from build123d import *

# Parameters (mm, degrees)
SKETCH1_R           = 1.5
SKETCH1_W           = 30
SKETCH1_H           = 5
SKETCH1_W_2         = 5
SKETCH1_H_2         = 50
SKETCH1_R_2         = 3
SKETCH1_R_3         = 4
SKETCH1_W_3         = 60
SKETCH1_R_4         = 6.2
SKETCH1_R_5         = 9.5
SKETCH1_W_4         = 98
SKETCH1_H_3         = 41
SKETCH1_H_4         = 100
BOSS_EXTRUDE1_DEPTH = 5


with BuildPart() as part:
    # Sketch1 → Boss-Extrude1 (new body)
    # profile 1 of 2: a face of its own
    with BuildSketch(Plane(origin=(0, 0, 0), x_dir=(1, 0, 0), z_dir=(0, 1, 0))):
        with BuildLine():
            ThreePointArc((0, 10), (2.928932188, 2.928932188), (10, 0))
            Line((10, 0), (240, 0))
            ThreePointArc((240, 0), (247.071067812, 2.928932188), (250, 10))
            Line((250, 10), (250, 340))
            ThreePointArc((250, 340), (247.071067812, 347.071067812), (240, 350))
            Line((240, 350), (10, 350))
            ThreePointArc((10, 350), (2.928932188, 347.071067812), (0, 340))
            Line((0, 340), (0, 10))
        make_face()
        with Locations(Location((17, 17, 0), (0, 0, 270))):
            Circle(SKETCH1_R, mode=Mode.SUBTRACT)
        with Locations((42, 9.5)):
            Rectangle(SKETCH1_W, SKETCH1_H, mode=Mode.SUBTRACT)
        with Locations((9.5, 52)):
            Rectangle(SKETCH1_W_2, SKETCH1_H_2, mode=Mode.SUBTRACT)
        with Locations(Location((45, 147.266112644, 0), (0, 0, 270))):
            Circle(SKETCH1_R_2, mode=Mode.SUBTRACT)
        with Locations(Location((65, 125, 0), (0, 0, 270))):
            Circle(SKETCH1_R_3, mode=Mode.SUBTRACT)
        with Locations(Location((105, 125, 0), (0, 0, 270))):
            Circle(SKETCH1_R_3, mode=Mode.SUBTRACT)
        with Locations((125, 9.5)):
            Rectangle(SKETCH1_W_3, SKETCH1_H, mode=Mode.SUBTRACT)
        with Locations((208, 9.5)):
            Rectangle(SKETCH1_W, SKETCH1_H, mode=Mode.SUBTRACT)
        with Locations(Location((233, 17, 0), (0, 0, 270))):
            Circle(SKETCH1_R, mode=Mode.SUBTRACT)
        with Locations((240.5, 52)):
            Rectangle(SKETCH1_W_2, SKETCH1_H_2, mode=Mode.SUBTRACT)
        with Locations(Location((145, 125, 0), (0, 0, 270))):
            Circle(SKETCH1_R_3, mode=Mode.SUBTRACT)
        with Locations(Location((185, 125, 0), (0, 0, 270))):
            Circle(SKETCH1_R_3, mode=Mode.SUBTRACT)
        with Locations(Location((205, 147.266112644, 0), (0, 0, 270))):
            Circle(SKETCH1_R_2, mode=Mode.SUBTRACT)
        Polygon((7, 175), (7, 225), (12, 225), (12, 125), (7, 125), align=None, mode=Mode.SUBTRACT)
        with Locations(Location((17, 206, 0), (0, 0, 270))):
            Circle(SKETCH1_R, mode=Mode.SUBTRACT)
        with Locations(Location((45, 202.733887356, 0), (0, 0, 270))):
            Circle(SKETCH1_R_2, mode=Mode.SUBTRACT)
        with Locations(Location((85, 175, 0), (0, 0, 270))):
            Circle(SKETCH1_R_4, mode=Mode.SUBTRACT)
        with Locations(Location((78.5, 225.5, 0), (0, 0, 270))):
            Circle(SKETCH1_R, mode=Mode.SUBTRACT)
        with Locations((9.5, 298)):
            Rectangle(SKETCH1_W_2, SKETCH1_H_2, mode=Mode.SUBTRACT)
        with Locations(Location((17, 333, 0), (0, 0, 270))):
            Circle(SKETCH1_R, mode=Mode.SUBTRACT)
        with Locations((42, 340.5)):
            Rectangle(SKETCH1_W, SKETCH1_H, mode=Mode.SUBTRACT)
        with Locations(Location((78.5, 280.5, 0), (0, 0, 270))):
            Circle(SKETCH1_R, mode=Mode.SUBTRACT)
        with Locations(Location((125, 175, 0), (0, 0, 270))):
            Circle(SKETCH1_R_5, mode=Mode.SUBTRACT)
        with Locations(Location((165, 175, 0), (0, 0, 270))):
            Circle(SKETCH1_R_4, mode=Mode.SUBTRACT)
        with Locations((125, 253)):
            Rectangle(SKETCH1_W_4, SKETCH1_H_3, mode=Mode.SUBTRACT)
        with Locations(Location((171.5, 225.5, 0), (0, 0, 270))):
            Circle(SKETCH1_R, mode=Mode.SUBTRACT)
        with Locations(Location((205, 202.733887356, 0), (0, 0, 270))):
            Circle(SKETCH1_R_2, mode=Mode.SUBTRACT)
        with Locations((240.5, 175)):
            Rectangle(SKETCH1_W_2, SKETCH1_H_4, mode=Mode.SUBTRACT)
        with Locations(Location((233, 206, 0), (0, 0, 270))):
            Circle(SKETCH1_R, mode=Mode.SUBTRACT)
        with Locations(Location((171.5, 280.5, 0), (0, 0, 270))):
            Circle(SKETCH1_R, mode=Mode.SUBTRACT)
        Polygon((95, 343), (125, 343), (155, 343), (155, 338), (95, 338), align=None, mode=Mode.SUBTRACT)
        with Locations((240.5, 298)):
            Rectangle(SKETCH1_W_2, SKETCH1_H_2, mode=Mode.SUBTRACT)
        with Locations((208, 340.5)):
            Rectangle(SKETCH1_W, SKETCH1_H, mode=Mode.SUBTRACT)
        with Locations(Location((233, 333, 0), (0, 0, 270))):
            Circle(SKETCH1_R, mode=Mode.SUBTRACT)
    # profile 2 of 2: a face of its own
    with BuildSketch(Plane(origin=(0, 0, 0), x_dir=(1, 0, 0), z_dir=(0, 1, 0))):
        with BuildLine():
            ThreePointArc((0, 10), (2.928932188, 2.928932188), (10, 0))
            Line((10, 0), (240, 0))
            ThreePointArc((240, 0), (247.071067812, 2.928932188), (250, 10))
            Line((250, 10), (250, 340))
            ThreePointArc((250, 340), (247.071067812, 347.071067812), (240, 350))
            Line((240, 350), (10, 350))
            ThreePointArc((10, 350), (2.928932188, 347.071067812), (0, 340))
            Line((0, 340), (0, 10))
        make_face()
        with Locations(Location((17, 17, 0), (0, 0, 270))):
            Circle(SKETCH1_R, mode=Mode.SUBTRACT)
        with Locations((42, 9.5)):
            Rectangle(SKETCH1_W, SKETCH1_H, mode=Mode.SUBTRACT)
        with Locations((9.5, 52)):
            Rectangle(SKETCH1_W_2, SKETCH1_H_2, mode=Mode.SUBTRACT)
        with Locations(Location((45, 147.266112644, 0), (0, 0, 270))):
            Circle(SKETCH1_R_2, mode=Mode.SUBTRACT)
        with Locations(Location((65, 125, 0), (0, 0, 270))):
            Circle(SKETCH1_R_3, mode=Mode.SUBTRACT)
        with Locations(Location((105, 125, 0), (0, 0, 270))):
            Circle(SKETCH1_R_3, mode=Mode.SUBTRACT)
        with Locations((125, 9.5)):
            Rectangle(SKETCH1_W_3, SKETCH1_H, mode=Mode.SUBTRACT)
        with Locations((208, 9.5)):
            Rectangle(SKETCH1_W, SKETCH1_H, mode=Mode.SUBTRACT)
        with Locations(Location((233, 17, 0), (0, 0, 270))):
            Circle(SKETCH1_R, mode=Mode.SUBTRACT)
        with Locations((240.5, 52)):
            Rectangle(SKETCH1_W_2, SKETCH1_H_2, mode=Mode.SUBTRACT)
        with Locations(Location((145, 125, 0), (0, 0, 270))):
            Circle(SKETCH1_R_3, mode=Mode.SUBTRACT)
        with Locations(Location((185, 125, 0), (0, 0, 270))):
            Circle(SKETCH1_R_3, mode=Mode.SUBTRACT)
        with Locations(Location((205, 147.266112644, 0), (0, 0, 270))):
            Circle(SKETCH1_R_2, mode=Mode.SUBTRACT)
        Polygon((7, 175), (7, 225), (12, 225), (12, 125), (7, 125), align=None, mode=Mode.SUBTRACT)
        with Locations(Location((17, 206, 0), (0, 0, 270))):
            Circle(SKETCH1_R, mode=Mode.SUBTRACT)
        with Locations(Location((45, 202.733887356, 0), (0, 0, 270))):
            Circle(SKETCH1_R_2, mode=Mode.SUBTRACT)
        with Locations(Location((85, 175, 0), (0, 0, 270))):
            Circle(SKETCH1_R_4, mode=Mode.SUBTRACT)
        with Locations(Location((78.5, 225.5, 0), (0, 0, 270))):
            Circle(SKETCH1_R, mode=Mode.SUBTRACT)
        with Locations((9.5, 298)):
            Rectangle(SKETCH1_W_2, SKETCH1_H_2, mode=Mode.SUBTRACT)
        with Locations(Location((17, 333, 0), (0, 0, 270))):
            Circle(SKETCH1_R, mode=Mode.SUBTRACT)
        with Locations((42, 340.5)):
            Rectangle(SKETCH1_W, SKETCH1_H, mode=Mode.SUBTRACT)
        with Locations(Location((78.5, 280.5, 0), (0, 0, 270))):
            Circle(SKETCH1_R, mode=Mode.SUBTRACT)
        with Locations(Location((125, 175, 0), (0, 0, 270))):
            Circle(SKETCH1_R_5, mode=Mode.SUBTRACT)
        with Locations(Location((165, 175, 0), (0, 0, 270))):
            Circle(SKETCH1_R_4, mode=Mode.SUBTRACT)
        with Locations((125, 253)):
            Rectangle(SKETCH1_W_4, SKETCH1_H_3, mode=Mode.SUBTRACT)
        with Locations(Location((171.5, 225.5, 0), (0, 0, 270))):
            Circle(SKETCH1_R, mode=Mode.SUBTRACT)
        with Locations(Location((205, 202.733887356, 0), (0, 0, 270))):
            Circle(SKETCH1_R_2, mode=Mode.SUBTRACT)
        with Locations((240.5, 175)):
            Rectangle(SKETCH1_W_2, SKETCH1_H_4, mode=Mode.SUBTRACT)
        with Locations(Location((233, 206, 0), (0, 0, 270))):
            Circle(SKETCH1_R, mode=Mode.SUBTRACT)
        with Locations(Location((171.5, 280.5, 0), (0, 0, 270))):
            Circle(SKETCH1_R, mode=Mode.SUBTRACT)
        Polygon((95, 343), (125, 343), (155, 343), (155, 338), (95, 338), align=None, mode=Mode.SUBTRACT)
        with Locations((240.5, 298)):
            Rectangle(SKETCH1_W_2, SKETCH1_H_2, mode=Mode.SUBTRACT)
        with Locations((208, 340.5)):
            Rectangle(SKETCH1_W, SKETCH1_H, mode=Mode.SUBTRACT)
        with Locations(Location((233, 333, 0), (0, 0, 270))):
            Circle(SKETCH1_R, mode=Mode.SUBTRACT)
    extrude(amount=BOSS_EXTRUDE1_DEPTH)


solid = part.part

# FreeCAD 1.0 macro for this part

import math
import FreeCAD as App
import Part
import Sketcher

V = App.Vector


def add_polygon(sketch, points):
    """Adds a closed chain of lines whose ends are joined by coincident constraints."""
    first, n = sketch.GeometryCount, len(points)
    for a, b in zip(points, points[1:] + points[:1]):
        sketch.addGeometry(Part.LineSegment(App.Vector(*a, 0), App.Vector(*b, 0)), False)
    for i in range(n):
        sketch.addConstraint(Sketcher.Constraint("Coincident", first + i, 2, first + (i + 1) % n, 1))

doc = App.newDocument("Part")
body = doc.addObject("PartDesign::Body", "Body")

# Sketch on XZ plane
sketch1 = doc.addObject("Sketcher::SketchObject", "Sketch")
body.addObject(sketch1)
sketch1.AttachmentSupport = (doc.XZ_Plane, [""])
sketch1.MapMode = "FlatFace"
sketch1.addGeometry(Part.ArcOfCircle(Part.Circle(V(10, -10, 0), V(0, 0, 1), 10), math.radians(90), math.radians(180)), False)  # 0
sketch1.addGeometry(Part.LineSegment(V(10, 0, 0), V(240, 0, 0)), False)  # 1
sketch1.addGeometry(Part.ArcOfCircle(Part.Circle(V(240, -10, 0), V(0, 0, 1), 10), math.radians(0), math.radians(90)), False)  # 2
sketch1.addGeometry(Part.LineSegment(V(250, -10, 0), V(250, -340, 0)), False)  # 3
sketch1.addGeometry(Part.ArcOfCircle(Part.Circle(V(240, -340, 0), V(0, 0, 1), 10), math.radians(-90), math.radians(0)), False)  # 4
sketch1.addGeometry(Part.LineSegment(V(240, -350, 0), V(10, -350, 0)), False)  # 5
sketch1.addGeometry(Part.ArcOfCircle(Part.Circle(V(10, -340, 0), V(0, 0, 1), 10), math.radians(180), math.radians(270)), False)  # 6
sketch1.addGeometry(Part.LineSegment(V(0, -340, 0), V(0, -10, 0)), False)  # 7
sketch1.addGeometry(Part.Circle(V(17, -17, 0), V(0, 0, 1), 1.5), False)  # 8
add_polygon(sketch1, [(57, -7), (27, -7), (27, -12), (57, -12)])  # lines 9-12
add_polygon(sketch1, [(12, -27), (7, -27), (7, -77), (12, -77)])  # lines 13-16
sketch1.addGeometry(Part.Circle(V(65, -125, 0), V(0, 0, 1), 4), False)  # 17
sketch1.addGeometry(Part.Circle(V(45, -147.266113, 0), V(0, 0, 1), 3), False)  # 18
sketch1.addGeometry(Part.Circle(V(105, -125, 0), V(0, 0, 1), 4), False)  # 19
add_polygon(sketch1, [(155, -7), (95, -7), (95, -12), (155, -12)])  # lines 20-23
add_polygon(sketch1, [(223, -7), (193, -7), (193, -12), (223, -12)])  # lines 24-27
sketch1.addGeometry(Part.Circle(V(233, -17, 0), V(0, 0, 1), 1.5), False)  # 28
add_polygon(sketch1, [(243, -27), (238, -27), (238, -77), (243, -77)])  # lines 29-32
sketch1.addGeometry(Part.Circle(V(145, -125, 0), V(0, 0, 1), 4), False)  # 33
sketch1.addGeometry(Part.Circle(V(185, -125, 0), V(0, 0, 1), 4), False)  # 34
sketch1.addGeometry(Part.Circle(V(205, -147.266113, 0), V(0, 0, 1), 3), False)  # 35
add_polygon(sketch1, [(7, -125), (7, -225), (12, -225), (12, -125)])  # lines 36-39
sketch1.addGeometry(Part.Circle(V(17, -206, 0), V(0, 0, 1), 1.5), False)  # 40
sketch1.addGeometry(Part.Circle(V(45, -202.733887, 0), V(0, 0, 1), 3), False)  # 41
sketch1.addGeometry(Part.Circle(V(85, -175, 0), V(0, 0, 1), 6.2), False)  # 42
sketch1.addGeometry(Part.Circle(V(78.5, -225.5, 0), V(0, 0, 1), 1.5), False)  # 43
add_polygon(sketch1, [(12, -273), (7, -273), (7, -323), (12, -323)])  # lines 44-47
sketch1.addGeometry(Part.Circle(V(17, -333, 0), V(0, 0, 1), 1.5), False)  # 48
add_polygon(sketch1, [(57, -338), (27, -338), (27, -343), (57, -343)])  # lines 49-52
sketch1.addGeometry(Part.Circle(V(78.5, -280.5, 0), V(0, 0, 1), 1.5), False)  # 53
sketch1.addGeometry(Part.Circle(V(125, -175, 0), V(0, 0, 1), 9.5), False)  # 54
sketch1.addGeometry(Part.Circle(V(165, -175, 0), V(0, 0, 1), 6.2), False)  # 55
add_polygon(sketch1, [(174, -232.5), (76, -232.5), (76, -273.5), (174, -273.5)])  # lines 56-59
sketch1.addGeometry(Part.Circle(V(171.5, -225.5, 0), V(0, 0, 1), 1.5), False)  # 60
sketch1.addGeometry(Part.Circle(V(205, -202.733887, 0), V(0, 0, 1), 3), False)  # 61
add_polygon(sketch1, [(243, -125), (238, -125), (238, -225), (243, -225)])  # lines 62-65
sketch1.addGeometry(Part.Circle(V(233, -206, 0), V(0, 0, 1), 1.5), False)  # 66
sketch1.addGeometry(Part.Circle(V(171.5, -280.5, 0), V(0, 0, 1), 1.5), False)  # 67
add_polygon(sketch1, [(95, -338), (95, -343), (155, -343), (155, -338)])  # lines 68-71
add_polygon(sketch1, [(243, -273), (238, -273), (238, -323), (243, -323)])  # lines 72-75
add_polygon(sketch1, [(223, -338), (193, -338), (193, -343), (223, -343)])  # lines 76-79
sketch1.addGeometry(Part.Circle(V(233, -333, 0), V(0, 0, 1), 1.5), False)  # 80
sketch1.addConstraint(Sketcher.Constraint("Tangent", 0, 1, 1, 1))
sketch1.addConstraint(Sketcher.Constraint("Tangent", 1, 2, 2, 2))
sketch1.addConstraint(Sketcher.Constraint("Tangent", 2, 1, 3, 1))
sketch1.addConstraint(Sketcher.Constraint("Tangent", 3, 2, 4, 2))
sketch1.addConstraint(Sketcher.Constraint("Tangent", 4, 1, 5, 1))
sketch1.addConstraint(Sketcher.Constraint("Tangent", 5, 2, 6, 2))
sketch1.addConstraint(Sketcher.Constraint("Tangent", 6, 1, 7, 1))
sketch1.addConstraint(Sketcher.Constraint("Tangent", 7, 2, 0, 2))
sketch1.addConstraint(Sketcher.Constraint("Horizontal", 1))
sketch1.addConstraint(Sketcher.Constraint("Vertical", 3))
sketch1.addConstraint(Sketcher.Constraint("Horizontal", 5))
sketch1.addConstraint(Sketcher.Constraint("Vertical", 7))
sketch1.addConstraint(Sketcher.Constraint("Horizontal", 9))
sketch1.addConstraint(Sketcher.Constraint("Vertical", 10))
sketch1.addConstraint(Sketcher.Constraint("Horizontal", 11))
sketch1.addConstraint(Sketcher.Constraint("Vertical", 12))
sketch1.addConstraint(Sketcher.Constraint("Horizontal", 13))
sketch1.addConstraint(Sketcher.Constraint("Vertical", 14))
sketch1.addConstraint(Sketcher.Constraint("Horizontal", 15))
sketch1.addConstraint(Sketcher.Constraint("Vertical", 16))
sketch1.addConstraint(Sketcher.Constraint("Horizontal", 20))
sketch1.addConstraint(Sketcher.Constraint("Vertical", 21))
sketch1.addConstraint(Sketcher.Constraint("Horizontal", 22))
sketch1.addConstraint(Sketcher.Constraint("Vertical", 23))
sketch1.addConstraint(Sketcher.Constraint("Horizontal", 24))
sketch1.addConstraint(Sketcher.Constraint("Vertical", 25))
sketch1.addConstraint(Sketcher.Constraint("Horizontal", 26))
sketch1.addConstraint(Sketcher.Constraint("Vertical", 27))
sketch1.addConstraint(Sketcher.Constraint("Horizontal", 29))
sketch1.addConstraint(Sketcher.Constraint("Vertical", 30))
sketch1.addConstraint(Sketcher.Constraint("Horizontal", 31))
sketch1.addConstraint(Sketcher.Constraint("Vertical", 32))
sketch1.addConstraint(Sketcher.Constraint("Vertical", 36))
sketch1.addConstraint(Sketcher.Constraint("Horizontal", 37))
sketch1.addConstraint(Sketcher.Constraint("Vertical", 38))
sketch1.addConstraint(Sketcher.Constraint("Horizontal", 39))
sketch1.addConstraint(Sketcher.Constraint("Horizontal", 44))
sketch1.addConstraint(Sketcher.Constraint("Vertical", 45))
sketch1.addConstraint(Sketcher.Constraint("Horizontal", 46))
sketch1.addConstraint(Sketcher.Constraint("Vertical", 47))
sketch1.addConstraint(Sketcher.Constraint("Horizontal", 49))
sketch1.addConstraint(Sketcher.Constraint("Vertical", 50))
sketch1.addConstraint(Sketcher.Constraint("Horizontal", 51))
sketch1.addConstraint(Sketcher.Constraint("Vertical", 52))
sketch1.addConstraint(Sketcher.Constraint("Horizontal", 56))
sketch1.addConstraint(Sketcher.Constraint("Vertical", 57))
sketch1.addConstraint(Sketcher.Constraint("Horizontal", 58))
sketch1.addConstraint(Sketcher.Constraint("Vertical", 59))
sketch1.addConstraint(Sketcher.Constraint("Horizontal", 62))
sketch1.addConstraint(Sketcher.Constraint("Vertical", 63))
sketch1.addConstraint(Sketcher.Constraint("Horizontal", 64))
sketch1.addConstraint(Sketcher.Constraint("Vertical", 65))
sketch1.addConstraint(Sketcher.Constraint("Vertical", 68))
sketch1.addConstraint(Sketcher.Constraint("Horizontal", 69))
sketch1.addConstraint(Sketcher.Constraint("Vertical", 70))
sketch1.addConstraint(Sketcher.Constraint("Horizontal", 71))
sketch1.addConstraint(Sketcher.Constraint("Horizontal", 72))
sketch1.addConstraint(Sketcher.Constraint("Vertical", 73))
sketch1.addConstraint(Sketcher.Constraint("Horizontal", 74))
sketch1.addConstraint(Sketcher.Constraint("Vertical", 75))
sketch1.addConstraint(Sketcher.Constraint("Horizontal", 76))
sketch1.addConstraint(Sketcher.Constraint("Vertical", 77))
sketch1.addConstraint(Sketcher.Constraint("Horizontal", 78))
sketch1.addConstraint(Sketcher.Constraint("Vertical", 79))
sketch1.addConstraint(Sketcher.Constraint("Equal", 0, 2))
sketch1.addConstraint(Sketcher.Constraint("Equal", 2, 4))
sketch1.addConstraint(Sketcher.Constraint("Equal", 4, 6))
sketch1.addConstraint(Sketcher.Constraint("Equal", 17, 19))
sketch1.addConstraint(Sketcher.Constraint("Equal", 8, 28))
sketch1.addConstraint(Sketcher.Constraint("Equal", 19, 33))
sketch1.addConstraint(Sketcher.Constraint("Equal", 33, 34))
sketch1.addConstraint(Sketcher.Constraint("Equal", 18, 35))
sketch1.addConstraint(Sketcher.Constraint("Equal", 28, 40))
sketch1.addConstraint(Sketcher.Constraint("Equal", 35, 41))
sketch1.addConstraint(Sketcher.Constraint("Equal", 40, 43))
sketch1.addConstraint(Sketcher.Constraint("Equal", 43, 48))
sketch1.addConstraint(Sketcher.Constraint("Equal", 48, 53))
sketch1.addConstraint(Sketcher.Constraint("Equal", 42, 55))
sketch1.addConstraint(Sketcher.Constraint("Equal", 53, 60))
sketch1.addConstraint(Sketcher.Constraint("Equal", 41, 61))
sketch1.addConstraint(Sketcher.Constraint("Equal", 60, 66))
sketch1.addConstraint(Sketcher.Constraint("Equal", 66, 67))
sketch1.addConstraint(Sketcher.Constraint("Equal", 67, 80))
sketch1.addConstraint(Sketcher.Constraint("PointOnObject", 0, 1, -1))
sketch1.addConstraint(Sketcher.Constraint("PointOnObject", 6, 1, -2))
sketch1.addConstraint(Sketcher.Constraint("Horizontal", 17, 3, 19, 3))
sketch1.addConstraint(Sketcher.Constraint("Horizontal", 8, 3, 28, 3))
sketch1.addConstraint(Sketcher.Constraint("Horizontal", 19, 3, 33, 3))
sketch1.addConstraint(Sketcher.Constraint("Horizontal", 33, 3, 34, 3))
sketch1.addConstraint(Sketcher.Constraint("Horizontal", 18, 3, 35, 3))
sketch1.addConstraint(Sketcher.Constraint("Horizontal", 42, 3, 54, 3))
sketch1.addConstraint(Sketcher.Constraint("Horizontal", 54, 3, 55, 3))
sketch1.addConstraint(Sketcher.Constraint("Horizontal", 43, 3, 60, 3))
sketch1.addConstraint(Sketcher.Constraint("Horizontal", 41, 3, 61, 3))
sketch1.addConstraint(Sketcher.Constraint("Horizontal", 40, 3, 66, 3))
sketch1.addConstraint(Sketcher.Constraint("Horizontal", 53, 3, 67, 3))
sketch1.addConstraint(Sketcher.Constraint("Horizontal", 48, 3, 80, 3))
sketch1.addConstraint(Sketcher.Constraint("Horizontal", 12, 2, 20, 2))
sketch1.addConstraint(Sketcher.Constraint("Horizontal", 11, 2, 21, 2))
sketch1.addConstraint(Sketcher.Constraint("Horizontal", 23, 2, 24, 2))
sketch1.addConstraint(Sketcher.Constraint("Horizontal", 22, 2, 25, 2))
sketch1.addConstraint(Sketcher.Constraint("Horizontal", 16, 2, 29, 2))
sketch1.addConstraint(Sketcher.Constraint("Horizontal", 15, 2, 30, 2))
sketch1.addConstraint(Sketcher.Constraint("Horizontal", 34, 3, 38, 2))
sketch1.addConstraint(Sketcher.Constraint("Horizontal", 39, 2, 62, 2))
sketch1.addConstraint(Sketcher.Constraint("Horizontal", 37, 2, 63, 2))
sketch1.addConstraint(Sketcher.Constraint("Horizontal", 51, 2, 68, 2))
sketch1.addConstraint(Sketcher.Constraint("Horizontal", 52, 2, 70, 2))
sketch1.addConstraint(Sketcher.Constraint("Horizontal", 47, 2, 72, 2))
sketch1.addConstraint(Sketcher.Constraint("Horizontal", 46, 2, 73, 2))
sketch1.addConstraint(Sketcher.Constraint("Horizontal", 71, 2, 76, 2))
sketch1.addConstraint(Sketcher.Constraint("Horizontal", 69, 2, 77, 2))
sketch1.addConstraint(Sketcher.Constraint("Vertical", 8, 3, 40, 3))
sketch1.addConstraint(Sketcher.Constraint("Vertical", 18, 3, 41, 3))
sketch1.addConstraint(Sketcher.Constraint("Vertical", 40, 3, 48, 3))
sketch1.addConstraint(Sketcher.Constraint("Vertical", 43, 3, 53, 3))
sketch1.addConstraint(Sketcher.Constraint("Vertical", 35, 3, 61, 3))
sketch1.addConstraint(Sketcher.Constraint("Vertical", 28, 3, 66, 3))
sketch1.addConstraint(Sketcher.Constraint("Vertical", 60, 3, 67, 3))
sketch1.addConstraint(Sketcher.Constraint("Vertical", 66, 3, 80, 3))
sketch1.addConstraint(Sketcher.Constraint("Vertical", 14, 2, 36, 2))
sketch1.addConstraint(Sketcher.Constraint("Vertical", 16, 2, 37, 2))
sketch1.addConstraint(Sketcher.Constraint("Vertical", 39, 2, 44, 2))
sketch1.addConstraint(Sketcher.Constraint("Vertical", 38, 2, 46, 2))
sketch1.addConstraint(Sketcher.Constraint("Vertical", 10, 2, 49, 2))
sketch1.addConstraint(Sketcher.Constraint("Vertical", 12, 2, 51, 2))
sketch1.addConstraint(Sketcher.Constraint("Vertical", 30, 2, 62, 2))
sketch1.addConstraint(Sketcher.Constraint("Vertical", 32, 2, 64, 2))
sketch1.addConstraint(Sketcher.Constraint("Vertical", 21, 2, 68, 2))
sketch1.addConstraint(Sketcher.Constraint("Vertical", 23, 2, 69, 2))
sketch1.addConstraint(Sketcher.Constraint("Vertical", 63, 2, 72, 2))
sketch1.addConstraint(Sketcher.Constraint("Vertical", 65, 2, 74, 2))
sketch1.addConstraint(Sketcher.Constraint("Vertical", 25, 2, 76, 2))
sketch1.addConstraint(Sketcher.Constraint("Vertical", 27, 2, 78, 2))
sketch1.addConstraint(Sketcher.Constraint("Equal", 11, 24))
sketch1.addConstraint(Sketcher.Constraint("Equal", 15, 29))
sketch1.addConstraint(Sketcher.Constraint("Equal", 74, 10))
sketch1.addConstraint(Sketcher.Constraint("Equal", 32, 45))
sketch1.addConstraint(Sketcher.Constraint("Equal", 27, 50))
sketch1.addConstraint(Sketcher.Constraint("Diameter", 8, 3.0))
sketch1.addConstraint(Sketcher.Constraint("Diameter", 17, 8.0))
sketch1.addConstraint(Sketcher.Constraint("Diameter", 18, 6.0))
sketch1.addConstraint(Sketcher.Constraint("Diameter", 54, 19.0))
sketch1.addConstraint(Sketcher.Constraint("Radius", 0, 10.0))
sketch1.addConstraint(Sketcher.Constraint("Diameter", 42, 12.4))
sketch1.addConstraint(Sketcher.Constraint("DistanceX", 1, 1, 1, 2, 230.0))
sketch1.addConstraint(Sketcher.Constraint("DistanceX", 9, 2, 9, 1, 30.0))
sketch1.addConstraint(Sketcher.Constraint("DistanceX", 13, 2, 13, 1, 5.0))
sketch1.addConstraint(Sketcher.Constraint("DistanceX", 20, 2, 20, 1, 60.0))
sketch1.addConstraint(Sketcher.Constraint("DistanceX", 56, 2, 56, 1, 98.0))
sketch1.addConstraint(Sketcher.Constraint("DistanceY", 3, 2, 3, 1, 330.0))
sketch1.addConstraint(Sketcher.Constraint("DistanceY", 14, 2, 14, 1, 50.0))
sketch1.addConstraint(Sketcher.Constraint("DistanceY", 36, 2, 36, 1, 100.0))
sketch1.addConstraint(Sketcher.Constraint("DistanceY", 57, 2, 57, 1, 41.0))
sketch1.addConstraint(Sketcher.Constraint("DistanceX", -1, 1, 8, 3, 17.0))
sketch1.addConstraint(Sketcher.Constraint("DistanceY", 8, 3, -1, 1, 17.0))
sketch1.addConstraint(Sketcher.Constraint("DistanceX", -1, 1, 17, 3, 65.0))
sketch1.addConstraint(Sketcher.Constraint("DistanceY", 17, 3, -1, 1, 125.0))
sketch1.addConstraint(Sketcher.Constraint("DistanceX", -1, 1, 18, 3, 45.0))
sketch1.addConstraint(Sketcher.Constraint("DistanceX", -1, 1, 19, 3, 105.0))
sketch1.addConstraint(Sketcher.Constraint("DistanceX", -1, 1, 28, 3, 233.0))
sketch1.addConstraint(Sketcher.Constraint("DistanceX", -1, 1, 33, 3, 145.0))
sketch1.addConstraint(Sketcher.Constraint("DistanceX", -1, 1, 34, 3, 185.0))
sketch1.addConstraint(Sketcher.Constraint("DistanceX", -1, 1, 35, 3, 205.0))
sketch1.addConstraint(Sketcher.Constraint("DistanceY", 40, 3, -1, 1, 206.0))
sketch1.addConstraint(Sketcher.Constraint("DistanceX", -1, 1, 42, 3, 85.0))
sketch1.addConstraint(Sketcher.Constraint("DistanceY", 42, 3, -1, 1, 175.0))
sketch1.addConstraint(Sketcher.Constraint("DistanceY", 48, 3, -1, 1, 333.0))
sketch1.addConstraint(Sketcher.Constraint("DistanceX", -1, 1, 54, 3, 125.0))
sketch1.addConstraint(Sketcher.Constraint("DistanceX", -1, 1, 55, 3, 165.0))
sketch1.addConstraint(Sketcher.Constraint("DistanceX", -1, 1, 9, 2, 27.0))
sketch1.addConstraint(Sketcher.Constraint("DistanceY", 9, 2, -1, 1, 7.0))
sketch1.addConstraint(Sketcher.Constraint("DistanceX", -1, 1, 13, 2, 7.0))
sketch1.addConstraint(Sketcher.Constraint("DistanceY", 13, 2, -1, 1, 27.0))
sketch1.addConstraint(Sketcher.Constraint("DistanceX", -1, 1, 20, 2, 95.0))
sketch1.addConstraint(Sketcher.Constraint("DistanceX", -1, 1, 24, 2, 193.0))
sketch1.addConstraint(Sketcher.Constraint("DistanceX", -1, 1, 29, 2, 238.0))
sketch1.addConstraint(Sketcher.Constraint("DistanceY", 44, 2, -1, 1, 273.0))
sketch1.addConstraint(Sketcher.Constraint("DistanceY", 49, 2, -1, 1, 338.0))
sketch1.addConstraint(Sketcher.Constraint("DistanceX", -1, 1, 56, 2, 76.0))
sketch1.addConstraint(Sketcher.Constraint("DistanceX", -1, 1, 43, 3, 78.5))
sketch1.addConstraint(Sketcher.Constraint("DistanceY", 43, 3, -1, 1, 225.5))
sketch1.addConstraint(Sketcher.Constraint("DistanceY", 53, 3, -1, 1, 280.5))
sketch1.addConstraint(Sketcher.Constraint("DistanceX", -1, 1, 60, 3, 171.5))
sketch1.addConstraint(Sketcher.Constraint("DistanceY", 56, 2, -1, 1, 232.5))
sketch1.addConstraint(Sketcher.Constraint("DistanceY", 18, 3, -1, 1, 147.266113))
sketch1.addConstraint(Sketcher.Constraint("DistanceY", 41, 3, -1, 1, 202.733887))
pad1 = doc.addObject("PartDesign::Pad", "Pad")
body.addObject(pad1)
pad1.Profile = sketch1
pad1.Length = 5
pad1.Reversed = True

doc.recompute()
